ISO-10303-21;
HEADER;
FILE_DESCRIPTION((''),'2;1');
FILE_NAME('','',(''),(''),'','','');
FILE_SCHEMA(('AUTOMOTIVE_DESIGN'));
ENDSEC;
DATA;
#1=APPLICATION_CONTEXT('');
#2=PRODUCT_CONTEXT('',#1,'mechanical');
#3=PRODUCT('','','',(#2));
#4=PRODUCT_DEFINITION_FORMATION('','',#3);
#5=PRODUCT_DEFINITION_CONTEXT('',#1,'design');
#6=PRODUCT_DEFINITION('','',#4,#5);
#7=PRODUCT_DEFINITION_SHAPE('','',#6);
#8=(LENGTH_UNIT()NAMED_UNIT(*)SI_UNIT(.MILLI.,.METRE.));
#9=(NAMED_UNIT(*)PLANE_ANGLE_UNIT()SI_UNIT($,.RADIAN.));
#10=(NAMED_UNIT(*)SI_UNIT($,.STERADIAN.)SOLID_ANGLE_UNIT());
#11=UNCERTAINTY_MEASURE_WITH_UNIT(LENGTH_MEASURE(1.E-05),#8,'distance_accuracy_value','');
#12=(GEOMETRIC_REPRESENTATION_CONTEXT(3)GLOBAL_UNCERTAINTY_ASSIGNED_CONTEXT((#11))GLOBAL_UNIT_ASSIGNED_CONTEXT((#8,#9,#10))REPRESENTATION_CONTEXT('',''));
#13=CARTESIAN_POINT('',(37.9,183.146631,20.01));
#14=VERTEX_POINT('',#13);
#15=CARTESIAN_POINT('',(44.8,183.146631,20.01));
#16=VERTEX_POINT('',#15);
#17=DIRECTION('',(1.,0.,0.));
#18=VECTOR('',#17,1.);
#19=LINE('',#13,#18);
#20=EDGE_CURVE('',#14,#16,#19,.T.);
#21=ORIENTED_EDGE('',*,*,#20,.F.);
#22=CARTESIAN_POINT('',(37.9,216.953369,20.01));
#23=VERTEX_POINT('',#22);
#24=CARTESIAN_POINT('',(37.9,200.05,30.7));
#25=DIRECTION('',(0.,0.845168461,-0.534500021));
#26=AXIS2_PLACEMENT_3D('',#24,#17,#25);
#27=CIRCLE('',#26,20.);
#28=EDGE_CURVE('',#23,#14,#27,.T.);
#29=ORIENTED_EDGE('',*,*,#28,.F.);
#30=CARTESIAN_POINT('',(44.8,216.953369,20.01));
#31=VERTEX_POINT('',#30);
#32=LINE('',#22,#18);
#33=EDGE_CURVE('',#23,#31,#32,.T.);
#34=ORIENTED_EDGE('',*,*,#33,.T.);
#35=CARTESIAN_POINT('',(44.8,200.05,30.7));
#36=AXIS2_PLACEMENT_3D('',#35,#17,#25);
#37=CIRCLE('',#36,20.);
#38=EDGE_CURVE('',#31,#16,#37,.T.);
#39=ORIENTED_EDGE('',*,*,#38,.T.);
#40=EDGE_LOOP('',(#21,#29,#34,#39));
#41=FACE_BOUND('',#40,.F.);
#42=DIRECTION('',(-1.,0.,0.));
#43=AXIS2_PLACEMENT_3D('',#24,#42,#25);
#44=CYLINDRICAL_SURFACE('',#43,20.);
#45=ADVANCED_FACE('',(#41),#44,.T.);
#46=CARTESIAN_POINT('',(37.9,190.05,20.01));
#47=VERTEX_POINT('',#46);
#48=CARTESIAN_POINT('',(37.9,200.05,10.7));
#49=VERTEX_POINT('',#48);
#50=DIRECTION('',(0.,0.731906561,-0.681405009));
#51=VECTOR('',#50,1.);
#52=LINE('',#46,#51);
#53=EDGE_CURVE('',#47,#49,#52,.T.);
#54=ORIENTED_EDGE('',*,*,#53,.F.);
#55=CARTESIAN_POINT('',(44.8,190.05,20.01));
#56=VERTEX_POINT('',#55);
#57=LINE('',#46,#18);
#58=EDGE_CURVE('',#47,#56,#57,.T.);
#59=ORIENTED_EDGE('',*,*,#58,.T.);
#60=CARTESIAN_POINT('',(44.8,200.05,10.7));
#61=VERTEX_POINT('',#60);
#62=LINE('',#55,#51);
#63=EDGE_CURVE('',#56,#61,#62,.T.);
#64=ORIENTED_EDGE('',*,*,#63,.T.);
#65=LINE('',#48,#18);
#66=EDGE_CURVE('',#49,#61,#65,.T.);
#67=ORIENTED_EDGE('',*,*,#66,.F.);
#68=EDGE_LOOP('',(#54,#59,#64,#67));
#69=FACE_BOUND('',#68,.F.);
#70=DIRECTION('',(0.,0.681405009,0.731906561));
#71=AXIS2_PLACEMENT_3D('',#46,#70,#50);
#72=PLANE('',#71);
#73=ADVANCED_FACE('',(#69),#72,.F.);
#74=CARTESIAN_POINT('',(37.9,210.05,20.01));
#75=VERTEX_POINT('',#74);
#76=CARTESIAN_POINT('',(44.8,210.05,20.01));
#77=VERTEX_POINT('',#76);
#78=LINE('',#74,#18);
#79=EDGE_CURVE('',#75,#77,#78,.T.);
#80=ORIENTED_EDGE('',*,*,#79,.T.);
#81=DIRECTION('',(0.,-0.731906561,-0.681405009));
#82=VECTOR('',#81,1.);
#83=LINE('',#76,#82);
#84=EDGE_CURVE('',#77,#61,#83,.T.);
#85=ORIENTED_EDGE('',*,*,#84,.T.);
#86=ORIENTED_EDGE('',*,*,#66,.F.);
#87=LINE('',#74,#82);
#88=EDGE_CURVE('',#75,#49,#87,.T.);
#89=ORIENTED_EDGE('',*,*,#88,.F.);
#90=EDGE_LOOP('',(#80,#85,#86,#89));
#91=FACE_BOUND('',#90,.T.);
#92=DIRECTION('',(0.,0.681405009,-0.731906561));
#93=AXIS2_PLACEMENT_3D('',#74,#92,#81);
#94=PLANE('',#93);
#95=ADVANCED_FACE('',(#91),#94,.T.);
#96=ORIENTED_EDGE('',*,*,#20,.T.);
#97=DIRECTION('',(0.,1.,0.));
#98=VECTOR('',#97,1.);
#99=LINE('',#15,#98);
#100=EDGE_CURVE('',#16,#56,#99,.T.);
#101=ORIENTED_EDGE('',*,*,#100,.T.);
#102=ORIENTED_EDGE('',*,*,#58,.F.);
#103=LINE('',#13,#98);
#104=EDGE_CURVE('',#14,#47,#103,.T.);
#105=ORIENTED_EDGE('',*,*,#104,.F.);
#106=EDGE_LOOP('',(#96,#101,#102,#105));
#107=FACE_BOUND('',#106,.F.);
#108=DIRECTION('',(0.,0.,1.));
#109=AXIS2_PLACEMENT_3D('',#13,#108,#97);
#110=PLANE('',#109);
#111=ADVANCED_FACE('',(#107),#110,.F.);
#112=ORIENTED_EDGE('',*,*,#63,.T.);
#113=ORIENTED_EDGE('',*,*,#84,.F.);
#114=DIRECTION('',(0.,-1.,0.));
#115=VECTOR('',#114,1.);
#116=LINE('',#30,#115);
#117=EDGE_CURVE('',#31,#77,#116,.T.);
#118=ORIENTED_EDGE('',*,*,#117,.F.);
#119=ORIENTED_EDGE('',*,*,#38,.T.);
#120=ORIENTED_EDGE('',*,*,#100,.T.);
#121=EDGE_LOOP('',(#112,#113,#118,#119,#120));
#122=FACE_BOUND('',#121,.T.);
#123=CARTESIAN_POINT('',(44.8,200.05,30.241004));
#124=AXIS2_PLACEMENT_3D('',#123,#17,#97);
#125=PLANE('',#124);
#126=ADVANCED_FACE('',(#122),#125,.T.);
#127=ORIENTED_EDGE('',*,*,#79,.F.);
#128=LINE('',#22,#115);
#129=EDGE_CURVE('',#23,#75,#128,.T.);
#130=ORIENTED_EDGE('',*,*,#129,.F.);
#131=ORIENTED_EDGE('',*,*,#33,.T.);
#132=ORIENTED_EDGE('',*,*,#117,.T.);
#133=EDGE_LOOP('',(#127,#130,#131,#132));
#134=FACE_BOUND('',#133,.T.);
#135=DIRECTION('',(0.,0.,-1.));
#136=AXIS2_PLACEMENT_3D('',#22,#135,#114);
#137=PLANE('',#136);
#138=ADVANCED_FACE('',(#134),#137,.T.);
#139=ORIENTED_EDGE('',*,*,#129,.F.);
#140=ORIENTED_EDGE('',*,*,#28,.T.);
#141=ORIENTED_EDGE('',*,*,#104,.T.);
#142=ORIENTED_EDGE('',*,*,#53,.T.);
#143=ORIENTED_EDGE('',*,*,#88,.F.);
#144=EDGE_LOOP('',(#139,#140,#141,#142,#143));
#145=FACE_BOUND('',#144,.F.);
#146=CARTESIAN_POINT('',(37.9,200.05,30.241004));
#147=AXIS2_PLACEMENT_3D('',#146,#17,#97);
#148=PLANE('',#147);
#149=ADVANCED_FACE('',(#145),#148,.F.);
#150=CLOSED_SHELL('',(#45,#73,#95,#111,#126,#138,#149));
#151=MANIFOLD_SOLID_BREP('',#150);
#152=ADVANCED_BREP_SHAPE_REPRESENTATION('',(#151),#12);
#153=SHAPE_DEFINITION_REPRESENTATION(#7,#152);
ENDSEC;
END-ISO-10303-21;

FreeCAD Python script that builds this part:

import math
import FreeCAD as App
import Part
import Sketcher
Q = App.Units.Quantity

doc = App.newDocument("Part")
body = doc.addObject("PartDesign::Body", "Body")

# Sketch on YZ plane
sketch1 = body.newObject("Sketcher::SketchObject", "Sketch")
sketch1.AttachmentSupport = (doc.getObject("YZ_Plane"), [""])
sketch1.MapMode = "FlatFace"
sketch1.AttachmentOffset = App.Placement(App.Vector(0, 0, 37.9), App.Rotation())
sketch1.addGeometry(Part.ArcOfCircle(Part.Circle(App.Vector(200, 31, 0), App.Vector(0, 0, 1), 20), math.radians(-32), math.radians(212)), False)
sketch1.addGeometry(Part.LineSegment(App.Vector(183, 20, 0), App.Vector(190, 20, 0)), False)
sketch1.addGeometry(Part.LineSegment(App.Vector(190, 20, 0), App.Vector(200, 11, 0)), False)
sketch1.addGeometry(Part.LineSegment(App.Vector(200, 11, 0), App.Vector(210, 20, 0)), False)
sketch1.addGeometry(Part.LineSegment(App.Vector(210, 20, 0), App.Vector(217, 20, 0)), False)
sketch1.addConstraint(Sketcher.Constraint("Coincident", 0, 2, 1, 1))
sketch1.addConstraint(Sketcher.Constraint("Coincident", 1, 2, 2, 1))
sketch1.addConstraint(Sketcher.Constraint("Coincident", 2, 2, 3, 1))
sketch1.addConstraint(Sketcher.Constraint("Coincident", 3, 2, 4, 1))
sketch1.addConstraint(Sketcher.Constraint("Coincident", 4, 2, 0, 1))
sketch1.addConstraint(Sketcher.Constraint("Horizontal", 1))
sketch1.addConstraint(Sketcher.Constraint("Horizontal", 4))
sketch1.addConstraint(Sketcher.Constraint("Horizontal", 1, 2, 3, 2))
sketch1.addConstraint(Sketcher.Constraint("Vertical", 0, 3, 2, 2))
sketch1.addConstraint(Sketcher.Constraint("Equal", 1, 4))
sketch1.addConstraint(Sketcher.Constraint("Radius", 0, Q("20 mm")))
sketch1.addConstraint(Sketcher.Constraint("DistanceX", 1, 2, 0, 3, Q("10 mm")))
sketch1.addConstraint(Sketcher.Constraint("DistanceY", 2, 2, 0, 3, Q("20 mm")))
sketch1.addConstraint(Sketcher.Constraint("DistanceY", -1, 1, 0, 3, Q("30.7 mm")))
sketch1.addConstraint(Sketcher.Constraint("DistanceX", -1, 1, 0, 3, Q("200.05 mm")))
sketch1.addConstraint(Sketcher.Constraint("DistanceY", -1, 1, 0, 2, Q("20.01 mm")))
pad1 = body.newObject("PartDesign::Pad", "Pad")
pad1.Profile = sketch1
pad1.Length = 6.9

doc.recompute()
